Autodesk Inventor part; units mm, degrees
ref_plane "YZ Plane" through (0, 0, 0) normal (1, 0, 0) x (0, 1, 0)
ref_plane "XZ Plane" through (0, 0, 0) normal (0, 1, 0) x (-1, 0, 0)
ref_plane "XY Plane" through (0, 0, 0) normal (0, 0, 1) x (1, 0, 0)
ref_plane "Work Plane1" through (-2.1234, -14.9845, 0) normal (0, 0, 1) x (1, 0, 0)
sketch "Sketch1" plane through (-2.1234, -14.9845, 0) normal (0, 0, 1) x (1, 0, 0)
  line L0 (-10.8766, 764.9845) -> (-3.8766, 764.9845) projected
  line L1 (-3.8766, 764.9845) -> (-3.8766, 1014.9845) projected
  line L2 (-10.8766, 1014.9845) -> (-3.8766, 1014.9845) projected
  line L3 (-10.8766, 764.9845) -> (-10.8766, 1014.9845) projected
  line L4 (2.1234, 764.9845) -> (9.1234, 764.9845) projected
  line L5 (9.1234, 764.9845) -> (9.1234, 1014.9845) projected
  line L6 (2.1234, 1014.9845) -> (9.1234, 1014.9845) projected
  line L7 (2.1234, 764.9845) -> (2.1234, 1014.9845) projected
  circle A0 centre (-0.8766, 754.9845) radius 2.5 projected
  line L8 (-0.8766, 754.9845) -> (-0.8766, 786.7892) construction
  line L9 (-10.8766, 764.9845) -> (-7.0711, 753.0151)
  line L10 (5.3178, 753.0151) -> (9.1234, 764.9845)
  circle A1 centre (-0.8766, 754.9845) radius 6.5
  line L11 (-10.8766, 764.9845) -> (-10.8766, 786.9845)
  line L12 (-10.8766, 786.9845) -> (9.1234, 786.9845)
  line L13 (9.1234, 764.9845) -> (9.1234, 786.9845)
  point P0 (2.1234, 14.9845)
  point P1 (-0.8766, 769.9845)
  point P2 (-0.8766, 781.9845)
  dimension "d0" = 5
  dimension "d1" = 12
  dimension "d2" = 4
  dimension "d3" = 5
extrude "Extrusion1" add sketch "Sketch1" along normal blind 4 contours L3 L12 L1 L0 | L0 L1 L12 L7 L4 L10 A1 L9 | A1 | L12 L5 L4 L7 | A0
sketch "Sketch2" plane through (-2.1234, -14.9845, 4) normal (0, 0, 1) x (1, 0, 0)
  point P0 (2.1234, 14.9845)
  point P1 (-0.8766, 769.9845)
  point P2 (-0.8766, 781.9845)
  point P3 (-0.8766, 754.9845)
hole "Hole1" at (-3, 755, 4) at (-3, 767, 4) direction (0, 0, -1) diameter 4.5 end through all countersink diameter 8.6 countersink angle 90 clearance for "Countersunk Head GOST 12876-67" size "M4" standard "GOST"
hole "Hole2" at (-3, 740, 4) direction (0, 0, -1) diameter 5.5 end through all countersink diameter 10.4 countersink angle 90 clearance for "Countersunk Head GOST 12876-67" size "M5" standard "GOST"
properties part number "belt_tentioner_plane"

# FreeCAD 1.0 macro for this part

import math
import FreeCAD as App
import Part
import Sketcher
from FreeCAD import Vector
Q = App.Units.Quantity

doc = App.newDocument("Part")
body = doc.addObject("PartDesign::Body", "Body")

sketch1 = body.newObject("Sketcher::SketchObject", "Sketch")
sketch1.AttachmentSupport = (doc.getObject("XY_Plane"), [""])
sketch1.MapMode = "FlatFace"
sketch1.addGeometry([
    Part.LineSegment(Vector(-13, 772, 0), Vector(-13, 750, 0)),
    Part.LineSegment(Vector(-13, 750, 0), Vector(-9, 738, 0)),
    Part.ArcOfCircle(Part.Circle(Vector(-3, 740, 0), Vector(0, 0, 1), 6), math.radians(-162), math.radians(-18)),
    Part.LineSegment(Vector(3, 738, 0), Vector(7, 750, 0)),
    Part.LineSegment(Vector(7, 750, 0), Vector(7, 772, 0)),
    Part.LineSegment(Vector(7, 772, 0), Vector(-13, 772, 0)),
], False)
sketch1.addConstraint([
    Sketcher.Constraint("Coincident", 0, 2, 1, 1),
    Sketcher.Constraint("Tangent", 1, 2, 2, 1),
    Sketcher.Constraint("Tangent", 2, 2, 3, 1),
    Sketcher.Constraint("Coincident", 3, 2, 4, 1),
    Sketcher.Constraint("Coincident", 4, 2, 5, 1),
    Sketcher.Constraint("Coincident", 5, 2, 0, 1),
    Sketcher.Constraint("Vertical", 0),
    Sketcher.Constraint("Vertical", 4),
    Sketcher.Constraint("Horizontal", 5),
    Sketcher.Constraint("Horizontal", 1, 2, 2, 2),
    Sketcher.Constraint("Horizontal", 0, 2, 3, 2),
    Sketcher.Constraint("Radius", 2, Q("6.5 mm")),
    Sketcher.Constraint("DistanceX", 5, 2, 5, 1, Q("20 mm")),
    Sketcher.Constraint("DistanceY", 0, 2, 0, 1, Q("22 mm")),
    Sketcher.Constraint("DistanceX", 2, 3, -1, 1, Q("3 mm")),
    Sketcher.Constraint("DistanceY", -1, 1, 2, 3, Q("740 mm")),
    Sketcher.Constraint("DistanceY", -1, 1, 0, 2, Q("750 mm")),
])
pad1 = body.newObject("PartDesign::Pad", "Pad")
pad1.Profile = sketch1
pad1.Length = 4

sketch2 = body.newObject("Sketcher::SketchObject", "Sketch001")
sketch2.AttachmentSupport = (doc.getObject("XY_Plane"), [""])
sketch2.MapMode = "FlatFace"
sketch2.AttachmentOffset = App.Placement(Vector(0, 0, 4), App.Rotation())
sketch2.addGeometry([
    Part.Circle(Vector(-3, 755, 0), Vector(0, 0, 1), 2.2),
    Part.Circle(Vector(-3, 767, 0), Vector(0, 0, 1), 2.2),
], False)
sketch2.addConstraint([
    Sketcher.Constraint("Equal", 0, 1),
    Sketcher.Constraint("Vertical", 0, 3, 1, 3),
    Sketcher.Constraint("Diameter", 0, Q("4.5 mm")),
    Sketcher.Constraint("DistanceX", 0, 3, -1, 1, Q("3 mm")),
    Sketcher.Constraint("DistanceY", -1, 1, 0, 3, Q("755 mm")),
    Sketcher.Constraint("DistanceY", -1, 1, 1, 3, Q("767 mm")),
])
doc.recompute()
hole = body.newObject("PartDesign::Hole", "Hole")
hole.Profile = sketch2
hole.ThreadType = "None"
hole.Diameter = 4.5
hole.DepthType = "ThroughAll"
hole.HoleCutType = "Countersink"
hole.HoleCutDiameter = 8.6
hole.HoleCutCountersinkAngle = 90

sketch3 = body.newObject("Sketcher::SketchObject", "Sketch002")
sketch3.AttachmentSupport = (doc.getObject("XY_Plane"), [""])
sketch3.MapMode = "FlatFace"
sketch3.AttachmentOffset = App.Placement(Vector(0, 0, 4), App.Rotation())
sketch3.addGeometry(Part.Circle(Vector(-3, 740, 0), Vector(0, 0, 1), 2.8), False)
sketch3.addConstraint([
    Sketcher.Constraint("Diameter", 0, Q("5.5 mm")),
    Sketcher.Constraint("DistanceX", 0, 3, -1, 1, Q("3 mm")),
    Sketcher.Constraint("DistanceY", -1, 1, 0, 3, Q("740 mm")),
])
doc.recompute()
hole2 = body.newObject("PartDesign::Hole", "Hole001")
hole2.Profile = sketch3
hole2.ThreadType = "None"
hole2.Diameter = 5.5
hole2.DepthType = "ThroughAll"
hole2.HoleCutType = "Countersink"
hole2.HoleCutDiameter = 10.4
hole2.HoleCutCountersinkAngle = 90

doc.recompute()
